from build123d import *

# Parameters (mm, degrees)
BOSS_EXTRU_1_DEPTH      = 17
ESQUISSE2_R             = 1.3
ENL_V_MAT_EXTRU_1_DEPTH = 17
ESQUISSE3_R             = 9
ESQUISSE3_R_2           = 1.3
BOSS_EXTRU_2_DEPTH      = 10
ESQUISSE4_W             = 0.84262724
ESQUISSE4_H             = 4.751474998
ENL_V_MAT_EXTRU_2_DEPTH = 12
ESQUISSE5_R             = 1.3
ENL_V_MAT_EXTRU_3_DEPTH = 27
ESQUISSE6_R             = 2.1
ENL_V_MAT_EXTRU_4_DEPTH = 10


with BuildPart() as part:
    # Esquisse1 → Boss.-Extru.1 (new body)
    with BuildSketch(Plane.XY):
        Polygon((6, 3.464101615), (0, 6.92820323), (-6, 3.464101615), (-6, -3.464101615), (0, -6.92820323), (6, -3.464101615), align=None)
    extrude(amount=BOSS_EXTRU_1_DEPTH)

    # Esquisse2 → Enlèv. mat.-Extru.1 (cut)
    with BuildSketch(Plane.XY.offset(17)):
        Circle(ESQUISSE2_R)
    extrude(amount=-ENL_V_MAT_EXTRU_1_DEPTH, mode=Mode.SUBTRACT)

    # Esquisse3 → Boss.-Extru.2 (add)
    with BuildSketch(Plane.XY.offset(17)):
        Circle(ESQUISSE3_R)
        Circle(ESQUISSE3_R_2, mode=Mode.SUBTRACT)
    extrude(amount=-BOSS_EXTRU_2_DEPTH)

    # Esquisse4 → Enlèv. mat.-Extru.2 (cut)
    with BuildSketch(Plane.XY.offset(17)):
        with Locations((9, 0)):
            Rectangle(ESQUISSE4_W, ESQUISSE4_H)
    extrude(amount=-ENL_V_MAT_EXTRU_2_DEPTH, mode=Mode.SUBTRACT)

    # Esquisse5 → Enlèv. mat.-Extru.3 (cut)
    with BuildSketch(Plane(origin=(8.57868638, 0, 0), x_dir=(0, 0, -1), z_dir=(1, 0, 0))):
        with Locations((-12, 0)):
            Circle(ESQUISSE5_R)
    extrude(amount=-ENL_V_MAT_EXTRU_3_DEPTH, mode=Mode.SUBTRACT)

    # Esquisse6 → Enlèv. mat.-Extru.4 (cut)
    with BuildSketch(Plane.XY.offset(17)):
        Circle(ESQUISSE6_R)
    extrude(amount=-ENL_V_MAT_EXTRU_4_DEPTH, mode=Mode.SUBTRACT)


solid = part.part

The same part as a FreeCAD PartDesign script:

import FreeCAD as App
import Part
import Sketcher
Q = App.Units.Quantity


def add_polygon(sketch, points):
    """Adds a closed chain of lines whose ends are joined by coincident constraints."""
    first, n = sketch.GeometryCount, len(points)
    for a, b in zip(points, points[1:] + points[:1]):
        sketch.addGeometry(Part.LineSegment(App.Vector(*a, 0), App.Vector(*b, 0)), False)
    for i in range(n):
        sketch.addConstraint(Sketcher.Constraint("Coincident", first + i, 2, first + (i + 1) % n, 1))

doc = App.newDocument("Part")
params = doc.addObject("Spreadsheet::Sheet", "Params")
for row, (alias, value) in enumerate([
    ("pad1_length", "17 mm"),
    ("sketch2_diameter", "2.6 mm"),
    ("pocket1_length", "17 mm"),
    ("sketch3_diameter", "18 mm"),
    ("sketch3_diameter2", "2.6 mm"),
    ("pad2_length", "10 mm"),
    ("pocket2_length", "12 mm"),
    ("sketch5_diameter", "2.6 mm"),
    ("pocket3_length", "27 mm"),
    ("sketch6_diameter", "4.2 mm"),
    ("pocket4_length", "10 mm"),
], start=1):
    params.set(f"A{row}", alias)
    params.set(f"B{row}", "=" + value)
    params.setAlias(f"B{row}", alias)

body = doc.addObject("PartDesign::Body", "Body")

sketch1 = body.newObject("Sketcher::SketchObject", "Sketch")
sketch1.AttachmentSupport = (doc.getObject("XY_Plane"), [""])
sketch1.MapMode = "FlatFace"
add_polygon(sketch1, [(6, 3.464102), (0, 6.928203), (-6, 3.464102), (-6, -3.464102), (0, -6.928203), (6, -3.464102)])
sketch1.addConstraint(Sketcher.Constraint("Vertical", 2))
sketch1.addConstraint(Sketcher.Constraint("Vertical", 5))
sketch1.addConstraint(Sketcher.Constraint("Symmetric", 0, 2, 3, 2, -1, 1))
sketch1.addConstraint(Sketcher.Constraint("Symmetric", 1, 2, 4, 2, -1, 1))
sketch1.addConstraint(Sketcher.Constraint("PointOnObject", 0, 2, -2))
sketch1.addConstraint(Sketcher.Constraint("Parallel", 0, 3))
sketch1.addConstraint(Sketcher.Constraint("Horizontal", 2, 2, 4, 2))
sketch1.addConstraint(Sketcher.Constraint("Angle", 0, Q("150 deg")))
sketch1.addConstraint(Sketcher.Constraint("DistanceX", 1, 2, -1, 1, 6.0))
sketch1.addConstraint(Sketcher.Constraint("DistanceY", -1, 1, 1, 2, 3.464102))
pad1 = body.newObject("PartDesign::Pad", "Pad")
pad1.Profile = sketch1
pad1.setExpression("Length", "Params.pad1_length")

sketch2 = body.newObject("Sketcher::SketchObject", "Sketch001")
sketch2.AttachmentSupport = (doc.getObject("XY_Plane"), [""])
sketch2.MapMode = "FlatFace"
sketch2.AttachmentOffset = App.Placement(App.Vector(0, 0, 17), App.Rotation())
sketch2.addGeometry(Part.Circle(App.Vector(0, 0, 0), App.Vector(0, 0, 1), 1.3), False)
sketch2.addConstraint(Sketcher.Constraint("Coincident", 0, 3, -1, 1))
sketch2.addConstraint(Sketcher.Constraint("Diameter", 0, 2.6))
sketch2.setExpression("Constraints[1]", "Params.sketch2_diameter")
pocket1 = body.newObject("PartDesign::Pocket", "Pocket")
pocket1.Profile = sketch2
pocket1.setExpression("Length", "Params.pocket1_length")

sketch3 = body.newObject("Sketcher::SketchObject", "Sketch002")
sketch3.AttachmentSupport = (doc.getObject("XY_Plane"), [""])
sketch3.MapMode = "FlatFace"
sketch3.AttachmentOffset = App.Placement(App.Vector(0, 0, 17), App.Rotation())
sketch3.addGeometry(Part.Circle(App.Vector(0, 0, 0), App.Vector(0, 0, 1), 9), False)
sketch3.addGeometry(Part.Circle(App.Vector(0, 0, 0), App.Vector(0, 0, 1), 1.3), False)
sketch3.addConstraint(Sketcher.Constraint("Coincident", 0, 3, -1, 1))
sketch3.addConstraint(Sketcher.Constraint("Coincident", 1, 3, -1, 1))
sketch3.addConstraint(Sketcher.Constraint("Diameter", 0, 18.0))
sketch3.addConstraint(Sketcher.Constraint("Diameter", 1, 2.6))
sketch3.setExpression("Constraints[2]", "Params.sketch3_diameter")
sketch3.setExpression("Constraints[3]", "Params.sketch3_diameter2")
pad2 = body.newObject("PartDesign::Pad", "Pad001")
pad2.Profile = sketch3
pad2.setExpression("Length", "Params.pad2_length")
pad2.Reversed = True

sketch4 = body.newObject("Sketcher::SketchObject", "Sketch003")
sketch4.AttachmentSupport = (doc.getObject("XY_Plane"), [""])
sketch4.MapMode = "FlatFace"
sketch4.AttachmentOffset = App.Placement(App.Vector(0, 0, 17), App.Rotation())
add_polygon(sketch4, [(8.578686, 2.375737), (8.578686, -2.375737), (9.421314, -2.375737), (9.421314, 2.375737)])
sketch4.addConstraint(Sketcher.Constraint("Vertical", 0))
sketch4.addConstraint(Sketcher.Constraint("Horizontal", 1))
sketch4.addConstraint(Sketcher.Constraint("Vertical", 2))
sketch4.addConstraint(Sketcher.Constraint("Horizontal", 3))
sketch4.addConstraint(Sketcher.Constraint("DistanceX", 1, 1, 1, 2, 0.842627))
sketch4.addConstraint(Sketcher.Constraint("DistanceY", 0, 2, 0, 1, 4.751475))
sketch4.addConstraint(Sketcher.Constraint("DistanceX", -1, 1, 0, 2, 8.578686))
sketch4.addConstraint(Sketcher.Constraint("DistanceY", 0, 2, -1, 1, 2.375737))
pocket2 = body.newObject("PartDesign::Pocket", "Pocket001")
pocket2.Profile = sketch4
pocket2.setExpression("Length", "Params.pocket2_length")

sketch5 = body.newObject("Sketcher::SketchObject", "Sketch004")
sketch5.AttachmentSupport = (doc.getObject("YZ_Plane"), [""])
sketch5.MapMode = "FlatFace"
sketch5.AttachmentOffset = App.Placement(App.Vector(0, 0, 8.578686), App.Rotation())
sketch5.addGeometry(Part.Circle(App.Vector(0, 12, 0), App.Vector(0, 0, 1), 1.3), False)
sketch5.addConstraint(Sketcher.Constraint("PointOnObject", 0, 3, -2))
sketch5.addConstraint(Sketcher.Constraint("Diameter", 0, 2.6))
sketch5.addConstraint(Sketcher.Constraint("DistanceY", -1, 1, 0, 3, 12.0))
sketch5.setExpression("Constraints[1]", "Params.sketch5_diameter")
pocket3 = body.newObject("PartDesign::Pocket", "Pocket002")
pocket3.Profile = sketch5
pocket3.setExpression("Length", "Params.pocket3_length")

sketch6 = body.newObject("Sketcher::SketchObject", "Sketch005")
sketch6.AttachmentSupport = (doc.getObject("XY_Plane"), [""])
sketch6.MapMode = "FlatFace"
sketch6.AttachmentOffset = App.Placement(App.Vector(0, 0, 17), App.Rotation())
sketch6.addGeometry(Part.Circle(App.Vector(0, 0, 0), App.Vector(0, 0, 1), 2.1), False)
sketch6.addConstraint(Sketcher.Constraint("Coincident", 0, 3, -1, 1))
sketch6.addConstraint(Sketcher.Constraint("Diameter", 0, 4.2))
sketch6.setExpression("Constraints[1]", "Params.sketch6_diameter")
pocket4 = body.newObject("PartDesign::Pocket", "Pocket003")
pocket4.Profile = sketch6
pocket4.setExpression("Length", "Params.pocket4_length")

doc.recompute()
